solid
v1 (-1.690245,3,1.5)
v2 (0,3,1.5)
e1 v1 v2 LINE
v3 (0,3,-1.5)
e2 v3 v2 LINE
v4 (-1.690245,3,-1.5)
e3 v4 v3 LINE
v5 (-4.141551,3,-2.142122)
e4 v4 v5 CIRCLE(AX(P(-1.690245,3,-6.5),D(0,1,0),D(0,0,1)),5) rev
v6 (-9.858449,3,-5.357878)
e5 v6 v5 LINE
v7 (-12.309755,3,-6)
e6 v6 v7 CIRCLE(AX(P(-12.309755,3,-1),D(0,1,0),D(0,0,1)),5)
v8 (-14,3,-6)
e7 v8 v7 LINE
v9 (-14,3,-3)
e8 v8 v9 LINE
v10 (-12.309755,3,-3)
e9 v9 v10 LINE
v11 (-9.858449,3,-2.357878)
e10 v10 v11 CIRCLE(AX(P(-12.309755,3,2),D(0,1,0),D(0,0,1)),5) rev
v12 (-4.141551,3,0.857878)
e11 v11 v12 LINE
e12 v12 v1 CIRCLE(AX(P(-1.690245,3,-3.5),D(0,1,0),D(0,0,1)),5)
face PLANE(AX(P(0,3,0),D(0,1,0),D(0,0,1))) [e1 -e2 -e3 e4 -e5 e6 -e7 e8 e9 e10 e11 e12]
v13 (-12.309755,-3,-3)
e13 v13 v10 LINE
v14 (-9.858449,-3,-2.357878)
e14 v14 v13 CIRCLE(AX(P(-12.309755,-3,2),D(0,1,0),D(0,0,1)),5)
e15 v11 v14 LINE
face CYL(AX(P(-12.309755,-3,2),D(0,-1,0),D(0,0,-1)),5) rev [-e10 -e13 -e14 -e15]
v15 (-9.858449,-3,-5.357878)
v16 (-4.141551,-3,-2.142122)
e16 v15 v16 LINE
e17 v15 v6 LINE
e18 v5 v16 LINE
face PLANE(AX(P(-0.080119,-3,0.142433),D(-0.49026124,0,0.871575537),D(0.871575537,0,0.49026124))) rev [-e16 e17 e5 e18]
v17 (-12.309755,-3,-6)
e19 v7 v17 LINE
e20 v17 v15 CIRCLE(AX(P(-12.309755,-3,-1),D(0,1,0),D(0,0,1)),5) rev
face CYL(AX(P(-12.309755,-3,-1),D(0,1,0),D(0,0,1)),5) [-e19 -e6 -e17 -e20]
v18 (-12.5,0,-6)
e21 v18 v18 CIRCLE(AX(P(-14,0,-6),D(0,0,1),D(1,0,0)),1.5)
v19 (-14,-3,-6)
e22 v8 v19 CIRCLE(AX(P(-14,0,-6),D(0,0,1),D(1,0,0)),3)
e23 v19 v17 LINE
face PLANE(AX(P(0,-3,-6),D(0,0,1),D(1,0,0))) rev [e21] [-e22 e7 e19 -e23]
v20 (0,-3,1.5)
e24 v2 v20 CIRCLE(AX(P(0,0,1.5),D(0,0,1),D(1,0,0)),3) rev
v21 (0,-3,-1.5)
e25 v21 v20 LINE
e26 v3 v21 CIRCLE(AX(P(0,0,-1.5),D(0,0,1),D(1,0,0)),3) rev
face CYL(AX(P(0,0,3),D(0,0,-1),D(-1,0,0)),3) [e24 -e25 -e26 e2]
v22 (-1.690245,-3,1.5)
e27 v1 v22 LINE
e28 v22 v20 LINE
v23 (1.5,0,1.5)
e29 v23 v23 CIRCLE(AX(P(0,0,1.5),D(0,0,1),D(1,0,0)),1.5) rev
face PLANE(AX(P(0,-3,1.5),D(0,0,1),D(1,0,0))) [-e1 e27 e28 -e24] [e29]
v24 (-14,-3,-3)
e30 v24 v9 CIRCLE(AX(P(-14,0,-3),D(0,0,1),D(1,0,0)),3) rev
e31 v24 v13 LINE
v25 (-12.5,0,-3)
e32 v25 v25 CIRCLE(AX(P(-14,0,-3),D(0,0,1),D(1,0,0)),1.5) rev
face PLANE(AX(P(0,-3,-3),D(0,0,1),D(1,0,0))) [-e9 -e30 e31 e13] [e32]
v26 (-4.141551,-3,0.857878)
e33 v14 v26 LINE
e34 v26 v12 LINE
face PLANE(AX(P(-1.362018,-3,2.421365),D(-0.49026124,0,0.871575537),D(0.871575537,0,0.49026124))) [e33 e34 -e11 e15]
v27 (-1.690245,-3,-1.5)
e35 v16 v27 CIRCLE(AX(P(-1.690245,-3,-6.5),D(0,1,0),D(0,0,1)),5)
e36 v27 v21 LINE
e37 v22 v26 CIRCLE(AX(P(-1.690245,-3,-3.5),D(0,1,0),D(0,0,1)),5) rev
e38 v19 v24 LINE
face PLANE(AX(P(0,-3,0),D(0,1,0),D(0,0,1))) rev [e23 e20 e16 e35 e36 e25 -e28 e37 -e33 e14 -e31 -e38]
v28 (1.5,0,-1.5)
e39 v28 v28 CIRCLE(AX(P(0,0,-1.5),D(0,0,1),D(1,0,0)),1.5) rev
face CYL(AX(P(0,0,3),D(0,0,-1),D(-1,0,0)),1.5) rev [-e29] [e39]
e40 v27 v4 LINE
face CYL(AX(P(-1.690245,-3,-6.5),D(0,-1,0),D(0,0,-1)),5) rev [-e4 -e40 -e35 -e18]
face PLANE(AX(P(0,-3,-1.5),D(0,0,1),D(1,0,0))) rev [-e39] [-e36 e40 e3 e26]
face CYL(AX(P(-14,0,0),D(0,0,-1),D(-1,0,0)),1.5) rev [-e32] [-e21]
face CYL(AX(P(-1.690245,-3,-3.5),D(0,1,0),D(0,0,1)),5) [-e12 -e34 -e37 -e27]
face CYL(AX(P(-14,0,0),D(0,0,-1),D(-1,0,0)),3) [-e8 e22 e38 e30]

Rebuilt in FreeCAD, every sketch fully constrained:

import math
import FreeCAD as App
import Part
import Sketcher


def edges_at(feature, points):
    """Names of the edges that pass closest to the given points."""
    edges = feature.Shape.Edges
    near = lambda p: min(range(len(edges)), key=lambda i: edges[i].distToShape(Part.Vertex(*p))[0])
    return sorted({f"Edge{near(p) + 1}" for p in points})


def add_polygon(sketch, points):
    """Adds a closed chain of lines whose ends are joined by coincident constraints."""
    first, n = sketch.GeometryCount, len(points)
    for a, b in zip(points, points[1:] + points[:1]):
        sketch.addGeometry(Part.LineSegment(App.Vector(*a, 0), App.Vector(*b, 0)), False)
    for i in range(n):
        sketch.addConstraint(Sketcher.Constraint("Coincident", first + i, 2, first + (i + 1) % n, 1))

doc = App.newDocument("Part")
body = doc.addObject("PartDesign::Body", "Body")

# Sketch on XZ plane
sketch1 = body.newObject("Sketcher::SketchObject", "Sketch")
sketch1.AttachmentSupport = (doc.getObject("XZ_Plane"), [""])
sketch1.MapMode = "FlatFace"
add_polygon(sketch1, [(-3, 1.5), (3, 1.5), (3, -1.5), (-3, -1.5), (-11, -6), (-17, -6), (-17, -3), (-11, -3)])  # lines 0-7
sketch1.addConstraint(Sketcher.Constraint("Horizontal", 0))
sketch1.addConstraint(Sketcher.Constraint("Vertical", 1))
sketch1.addConstraint(Sketcher.Constraint("Horizontal", 2))
sketch1.addConstraint(Sketcher.Constraint("Horizontal", 4))
sketch1.addConstraint(Sketcher.Constraint("Vertical", 5))
sketch1.addConstraint(Sketcher.Constraint("Horizontal", 6))
sketch1.addConstraint(Sketcher.Constraint("Symmetric", 0, 2, 2, 2, -1, 1))
sketch1.addConstraint(Sketcher.Constraint("Parallel", 3, 7))
sketch1.addConstraint(Sketcher.Constraint("Vertical", 3, 2, 6, 2))
sketch1.addConstraint(Sketcher.Constraint("Vertical", 2, 2, 7, 2))
sketch1.addConstraint(Sketcher.Constraint("Equal", 2, 4))
sketch1.addConstraint(Sketcher.Constraint("DistanceX", 0, 1, 0, 2, 6.0))
sketch1.addConstraint(Sketcher.Constraint("DistanceY", 1, 2, 1, 1, 3.0))
sketch1.addConstraint(Sketcher.Constraint("DistanceX", 3, 2, -1, 1, 11.0))
sketch1.addConstraint(Sketcher.Constraint("DistanceY", 3, 2, -1, 1, 6.0))
pad1 = body.newObject("PartDesign::Pad", "Pad")
pad1.Profile = sketch1
pad1.Type = "TwoLengths"
pad1.Length = 3
pad1.Length2 = 3
pad1.Reversed = True

# Sketch on XY plane
sketch2 = body.newObject("Sketcher::SketchObject", "Sketch001")
sketch2.AttachmentSupport = (doc.getObject("XY_Plane"), [""])
sketch2.MapMode = "FlatFace"
sketch2.addGeometry(Part.ArcOfCircle(Part.Circle(App.Vector(0, 0, 0), App.Vector(0, 0, 1), 3), math.radians(0), math.radians(90)), False)
sketch2.addGeometry(Part.LineSegment(App.Vector(3, 0, 0), App.Vector(3, 3, 0)), False)
sketch2.addGeometry(Part.LineSegment(App.Vector(3, 3, 0), App.Vector(0, 3, 0)), False)
sketch2.addGeometry(Part.ArcOfCircle(Part.Circle(App.Vector(0, 0, 0), App.Vector(0, 0, 1), 3), math.radians(-90), math.radians(0)), False)
sketch2.addGeometry(Part.LineSegment(App.Vector(0, -3, 0), App.Vector(3, -3, 0)), False)
sketch2.addGeometry(Part.LineSegment(App.Vector(3, -3, 0), App.Vector(3, 0, 0)), False)
sketch2.addGeometry(Part.Circle(App.Vector(0, 0, 0), App.Vector(0, 0, 1), 1.5), False)
sketch2.addConstraint(Sketcher.Constraint("Tangent", 0, 1, 1, 1))
sketch2.addConstraint(Sketcher.Constraint("Coincident", 1, 2, 2, 1))
sketch2.addConstraint(Sketcher.Constraint("Tangent", 2, 2, 0, 2))
sketch2.addConstraint(Sketcher.Constraint("Tangent", 3, 1, 4, 1))
sketch2.addConstraint(Sketcher.Constraint("Coincident", 4, 2, 5, 1))
sketch2.addConstraint(Sketcher.Constraint("Tangent", 5, 2, 3, 2))
sketch2.addConstraint(Sketcher.Constraint("Vertical", 1))
sketch2.addConstraint(Sketcher.Constraint("Horizontal", 2))
sketch2.addConstraint(Sketcher.Constraint("Horizontal", 4))
sketch2.addConstraint(Sketcher.Constraint("Vertical", 5))
sketch2.addConstraint(Sketcher.Constraint("Coincident", 0, 3, -1, 1))
sketch2.addConstraint(Sketcher.Constraint("Coincident", 3, 3, -1, 1))
sketch2.addConstraint(Sketcher.Constraint("Coincident", 6, 3, -1, 1))
sketch2.addConstraint(Sketcher.Constraint("Equal", 0, 3))
sketch2.addConstraint(Sketcher.Constraint("Diameter", 6, 3.0))
sketch2.addConstraint(Sketcher.Constraint("Radius", 0, 3.0))
pocket1 = body.newObject("PartDesign::Pocket", "Pocket")
pocket1.Profile = sketch2
pocket1.Type = "ThroughAll"
pocket1.Midplane = True

# Sketch on XY plane
sketch3 = body.newObject("Sketcher::SketchObject", "Sketch002")
sketch3.AttachmentSupport = (doc.getObject("XY_Plane"), [""])
sketch3.MapMode = "FlatFace"
sketch3.AttachmentOffset = App.Placement(App.Vector(0, 0, -3), App.Rotation())
sketch3.addGeometry(Part.ArcOfCircle(Part.Circle(App.Vector(-14, 0, 0), App.Vector(0, 0, 1), 3), math.radians(-179.999999), math.radians(-90)), False)
sketch3.addGeometry(Part.LineSegment(App.Vector(-17, 0, 0), App.Vector(-17, -3, 0)), False)
sketch3.addGeometry(Part.LineSegment(App.Vector(-17, -3, 0), App.Vector(-14, -3, 0)), False)
sketch3.addGeometry(Part.ArcOfCircle(Part.Circle(App.Vector(-14, 0, 0), App.Vector(0, 0, 1), 3), math.radians(90), math.radians(180.000001)), False)
sketch3.addGeometry(Part.LineSegment(App.Vector(-14, 3, 0), App.Vector(-17, 3, 0)), False)
sketch3.addGeometry(Part.LineSegment(App.Vector(-17, 3, 0), App.Vector(-17, 0, 0)), False)
sketch3.addGeometry(Part.Circle(App.Vector(-14, 0, 0), App.Vector(0, 0, 1), 1.5), False)
sketch3.addConstraint(Sketcher.Constraint("Tangent", 0, 1, 1, 1))
sketch3.addConstraint(Sketcher.Constraint("Coincident", 1, 2, 2, 1))
sketch3.addConstraint(Sketcher.Constraint("Tangent", 2, 2, 0, 2))
sketch3.addConstraint(Sketcher.Constraint("Tangent", 3, 1, 4, 1))
sketch3.addConstraint(Sketcher.Constraint("Coincident", 4, 2, 5, 1))
sketch3.addConstraint(Sketcher.Constraint("Tangent", 5, 2, 3, 2))
sketch3.addConstraint(Sketcher.Constraint("Vertical", 1))
sketch3.addConstraint(Sketcher.Constraint("Horizontal", 2))
sketch3.addConstraint(Sketcher.Constraint("Horizontal", 4))
sketch3.addConstraint(Sketcher.Constraint("Vertical", 5))
sketch3.addConstraint(Sketcher.Constraint("Coincident", 3, 3, 0, 3))
sketch3.addConstraint(Sketcher.Constraint("Coincident", 6, 3, 0, 3))
sketch3.addConstraint(Sketcher.Constraint("Equal", 0, 3))
sketch3.addConstraint(Sketcher.Constraint("PointOnObject", 0, 3, -1))
sketch3.addConstraint(Sketcher.Constraint("Diameter", 6, 3.0))
sketch3.addConstraint(Sketcher.Constraint("Radius", 0, 3.0))
sketch3.addConstraint(Sketcher.Constraint("DistanceX", 0, 3, -1, 1, 14.0))
pocket2 = body.newObject("PartDesign::Pocket", "Pocket001")
pocket2.Profile = sketch3
pocket2.Type = "ThroughAll"
pocket2.Midplane = True
doc.recompute()

fillet = body.newObject("PartDesign::Fillet", "Fillet")
fillet.Base = (pocket2, edges_at(pocket2, [
    (-3, 0, -1.5),
    (-3, 0, 1.5),
    (-11, 0, -3),
    (-11, 0, -6),
]))
fillet.Radius = 5

doc.recompute()
